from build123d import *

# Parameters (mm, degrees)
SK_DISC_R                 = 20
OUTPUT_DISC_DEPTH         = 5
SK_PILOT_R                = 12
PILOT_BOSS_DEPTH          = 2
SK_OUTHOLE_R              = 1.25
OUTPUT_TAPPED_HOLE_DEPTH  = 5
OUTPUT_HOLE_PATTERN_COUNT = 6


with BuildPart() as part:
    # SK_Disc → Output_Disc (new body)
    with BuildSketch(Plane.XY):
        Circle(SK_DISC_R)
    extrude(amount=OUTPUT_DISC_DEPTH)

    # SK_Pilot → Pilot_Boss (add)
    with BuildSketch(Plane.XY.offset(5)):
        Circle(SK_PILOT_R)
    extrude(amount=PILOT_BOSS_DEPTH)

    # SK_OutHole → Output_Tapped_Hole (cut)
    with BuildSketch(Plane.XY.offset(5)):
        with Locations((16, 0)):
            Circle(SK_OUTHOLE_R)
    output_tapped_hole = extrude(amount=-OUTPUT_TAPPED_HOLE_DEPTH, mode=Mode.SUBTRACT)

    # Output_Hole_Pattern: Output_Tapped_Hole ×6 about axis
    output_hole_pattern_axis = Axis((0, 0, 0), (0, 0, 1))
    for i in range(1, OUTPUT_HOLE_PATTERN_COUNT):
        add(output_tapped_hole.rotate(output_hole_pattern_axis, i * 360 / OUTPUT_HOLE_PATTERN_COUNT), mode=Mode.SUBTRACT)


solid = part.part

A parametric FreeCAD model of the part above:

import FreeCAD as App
import Part
import Sketcher

doc = App.newDocument("Part")
body = doc.addObject("PartDesign::Body", "Body")

# Sketch on XY plane
sketch1 = body.newObject("Sketcher::SketchObject", "Sketch")
sketch1.AttachmentSupport = (doc.getObject("XY_Plane"), [""])
sketch1.MapMode = "FlatFace"
sketch1.addGeometry(Part.Circle(App.Vector(0, 0, 0), App.Vector(0, 0, 1), 20), False)
sketch1.addConstraint([
    Sketcher.Constraint("Coincident", 0, 3, -1, 1),
    Sketcher.Constraint("Diameter", 0, 40.0),
])
pad1 = body.newObject("PartDesign::Pad", "Pad")
pad1.Profile = sketch1
pad1.Length = 5

# Sketch on XY plane
sketch2 = body.newObject("Sketcher::SketchObject", "Sketch001")
sketch2.AttachmentSupport = (doc.getObject("XY_Plane"), [""])
sketch2.MapMode = "FlatFace"
sketch2.AttachmentOffset = App.Placement(App.Vector(0, 0, 5), App.Rotation())
sketch2.addGeometry(Part.Circle(App.Vector(0, 0, 0), App.Vector(0, 0, 1), 12), False)
sketch2.addConstraint([
    Sketcher.Constraint("Coincident", 0, 3, -1, 1),
    Sketcher.Constraint("Diameter", 0, 24.0),
])
pad2 = body.newObject("PartDesign::Pad", "Pad001")
pad2.Profile = sketch2
pad2.Length = 2

# Sketch on XY plane
sketch3 = body.newObject("Sketcher::SketchObject", "Sketch002")
sketch3.AttachmentSupport = (doc.getObject("XY_Plane"), [""])
sketch3.MapMode = "FlatFace"
sketch3.AttachmentOffset = App.Placement(App.Vector(0, 0, 5), App.Rotation())
sketch3.addGeometry(Part.Circle(App.Vector(16, 0, 0), App.Vector(0, 0, 1), 1.25), False)
sketch3.addConstraint([
    Sketcher.Constraint("PointOnObject", 0, 3, -1),
    Sketcher.Constraint("Diameter", 0, 2.5),
    Sketcher.Constraint("DistanceX", -1, 1, 0, 3, 16.0),
])
pocket1 = body.newObject("PartDesign::Pocket", "Pocket")
pocket1.Profile = sketch3
pocket1.Length = 5
doc.recompute()

polarpattern = body.newObject("PartDesign::PolarPattern", "PolarPattern")
polarpattern.Originals = [pocket1]
polarpattern.Axis = (doc.getObject("Z_Axis"), [""])
polarpattern.Angle = 360
polarpattern.Occurrences = 6
body.Tip = polarpattern

doc.recompute()
